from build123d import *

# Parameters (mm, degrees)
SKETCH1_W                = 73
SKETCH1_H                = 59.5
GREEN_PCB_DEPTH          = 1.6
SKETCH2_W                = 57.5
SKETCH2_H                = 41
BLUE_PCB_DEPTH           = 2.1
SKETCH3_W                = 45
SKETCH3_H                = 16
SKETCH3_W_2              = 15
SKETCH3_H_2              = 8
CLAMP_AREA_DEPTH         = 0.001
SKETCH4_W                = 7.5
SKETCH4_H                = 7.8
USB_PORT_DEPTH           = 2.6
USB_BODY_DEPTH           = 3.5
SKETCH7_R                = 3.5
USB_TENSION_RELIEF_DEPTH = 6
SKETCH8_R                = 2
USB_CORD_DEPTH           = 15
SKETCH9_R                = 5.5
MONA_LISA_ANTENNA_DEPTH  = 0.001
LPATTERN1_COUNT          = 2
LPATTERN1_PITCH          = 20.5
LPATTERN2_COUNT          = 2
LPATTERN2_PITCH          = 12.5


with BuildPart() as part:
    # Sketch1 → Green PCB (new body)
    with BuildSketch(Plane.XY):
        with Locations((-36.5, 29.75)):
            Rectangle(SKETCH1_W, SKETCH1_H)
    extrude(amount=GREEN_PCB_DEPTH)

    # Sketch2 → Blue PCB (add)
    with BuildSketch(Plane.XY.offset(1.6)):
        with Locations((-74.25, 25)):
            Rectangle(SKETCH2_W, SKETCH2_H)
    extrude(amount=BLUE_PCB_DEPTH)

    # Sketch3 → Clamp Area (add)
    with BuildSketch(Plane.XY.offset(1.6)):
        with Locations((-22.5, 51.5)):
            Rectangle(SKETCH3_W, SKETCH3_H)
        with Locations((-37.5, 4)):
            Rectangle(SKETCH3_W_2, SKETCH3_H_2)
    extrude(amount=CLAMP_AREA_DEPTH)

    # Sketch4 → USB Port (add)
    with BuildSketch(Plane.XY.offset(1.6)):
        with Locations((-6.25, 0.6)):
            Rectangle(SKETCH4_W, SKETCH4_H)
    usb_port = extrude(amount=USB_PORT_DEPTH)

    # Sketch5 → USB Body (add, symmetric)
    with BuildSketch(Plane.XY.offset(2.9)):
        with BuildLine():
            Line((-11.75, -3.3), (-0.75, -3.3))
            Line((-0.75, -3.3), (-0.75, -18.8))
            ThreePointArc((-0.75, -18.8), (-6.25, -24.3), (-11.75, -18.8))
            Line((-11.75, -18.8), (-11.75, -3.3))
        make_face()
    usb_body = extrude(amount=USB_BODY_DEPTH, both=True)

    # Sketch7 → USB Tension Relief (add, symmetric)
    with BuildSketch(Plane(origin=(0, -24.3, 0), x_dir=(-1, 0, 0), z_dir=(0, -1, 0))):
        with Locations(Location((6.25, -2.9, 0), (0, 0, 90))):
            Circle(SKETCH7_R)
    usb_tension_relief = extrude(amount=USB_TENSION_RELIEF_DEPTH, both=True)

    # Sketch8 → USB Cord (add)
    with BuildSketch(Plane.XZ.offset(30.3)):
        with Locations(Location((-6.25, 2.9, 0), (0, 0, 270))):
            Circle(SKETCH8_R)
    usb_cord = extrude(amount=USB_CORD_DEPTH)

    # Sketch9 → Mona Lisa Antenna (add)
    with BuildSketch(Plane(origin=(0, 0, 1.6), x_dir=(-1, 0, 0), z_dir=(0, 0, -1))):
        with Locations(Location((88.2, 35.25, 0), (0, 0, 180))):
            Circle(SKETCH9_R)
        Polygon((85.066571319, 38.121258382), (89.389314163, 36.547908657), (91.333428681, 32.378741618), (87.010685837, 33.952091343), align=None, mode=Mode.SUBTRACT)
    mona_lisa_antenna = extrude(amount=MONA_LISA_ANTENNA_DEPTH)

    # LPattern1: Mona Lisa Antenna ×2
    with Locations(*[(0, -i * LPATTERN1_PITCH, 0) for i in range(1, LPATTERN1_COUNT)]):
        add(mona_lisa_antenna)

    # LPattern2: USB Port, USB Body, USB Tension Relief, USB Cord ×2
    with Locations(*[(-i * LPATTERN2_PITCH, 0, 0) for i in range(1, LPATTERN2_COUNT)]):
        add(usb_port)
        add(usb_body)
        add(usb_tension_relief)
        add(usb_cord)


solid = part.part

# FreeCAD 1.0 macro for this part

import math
import FreeCAD as App
import Part
import Sketcher
from FreeCAD import Vector
Q = App.Units.Quantity


def add_polygon(sketch, points):
    """Adds a closed chain of lines whose ends are joined by coincident constraints."""
    first, n = sketch.GeometryCount, len(points)
    for a, b in zip(points, points[1:] + points[:1]):
        sketch.addGeometry(Part.LineSegment(App.Vector(*a, 0), App.Vector(*b, 0)), False)
    for i in range(n):
        sketch.addConstraint(Sketcher.Constraint("Coincident", first + i, 2, first + (i + 1) % n, 1))

doc = App.newDocument("Part")
body = doc.addObject("PartDesign::Body", "Body")

sketch1 = body.newObject("Sketcher::SketchObject", "Sketch")
sketch1.AttachmentSupport = (doc.getObject("XY_Plane"), [""])
sketch1.MapMode = "FlatFace"
add_polygon(sketch1, [(-73, 59.5), (-73, 0), (0, 0), (0, 59.5)])
sketch1.addConstraint([
    Sketcher.Constraint("Vertical", 0),
    Sketcher.Constraint("Horizontal", 1),
    Sketcher.Constraint("Vertical", 2),
    Sketcher.Constraint("Horizontal", 3),
    Sketcher.Constraint("Coincident", 1, 2, -1, 1),
    Sketcher.Constraint("DistanceX", 1, 1, 1, 2, 73.0),
    Sketcher.Constraint("DistanceY", 0, 2, 0, 1, 59.5),
])
pad1 = body.newObject("PartDesign::Pad", "Pad")
pad1.Profile = sketch1
pad1.Length = 1.6

sketch2 = body.newObject("Sketcher::SketchObject", "Sketch001")
sketch2.AttachmentSupport = (doc.getObject("XY_Plane"), [""])
sketch2.MapMode = "FlatFace"
sketch2.AttachmentOffset = App.Placement(Vector(0, 0, 1.6), App.Rotation())
add_polygon(sketch2, [(-103, 45.5), (-103, 4.5), (-45.5, 4.5), (-45.5, 45.5)])
sketch2.addConstraint([
    Sketcher.Constraint("Vertical", 0),
    Sketcher.Constraint("Horizontal", 1),
    Sketcher.Constraint("Vertical", 2),
    Sketcher.Constraint("Horizontal", 3),
    Sketcher.Constraint("DistanceY", 0, 2, 0, 1, 41.0),
    Sketcher.Constraint("DistanceX", 1, 1, 1, 2, 57.5),
    Sketcher.Constraint("DistanceX", 0, 2, -1, 1, 103.0),
    Sketcher.Constraint("DistanceY", -1, 1, 0, 2, 4.5),
])
pad2 = body.newObject("PartDesign::Pad", "Pad001")
pad2.Profile = sketch2
pad2.Length = 2.1

sketch3 = body.newObject("Sketcher::SketchObject", "Sketch002")
sketch3.AttachmentSupport = (doc.getObject("XY_Plane"), [""])
sketch3.MapMode = "FlatFace"
sketch3.AttachmentOffset = App.Placement(Vector(0, 0, 1.6), App.Rotation())
add_polygon(sketch3, [(-45, 59.5), (-45, 43.5), (0, 43.5), (0, 59.5)])
add_polygon(sketch3, [(-45, 8), (-45, 0), (-30, 0), (-30, 8)])
sketch3.addConstraint([
    Sketcher.Constraint("Vertical", 0),
    Sketcher.Constraint("Horizontal", 1),
    Sketcher.Constraint("Vertical", 2),
    Sketcher.Constraint("Horizontal", 3),
    Sketcher.Constraint("Vertical", 4),
    Sketcher.Constraint("Horizontal", 5),
    Sketcher.Constraint("Vertical", 6),
    Sketcher.Constraint("Horizontal", 7),
    Sketcher.Constraint("PointOnObject", 1, 2, -2),
    Sketcher.Constraint("PointOnObject", 4, 2, -1),
    Sketcher.Constraint("Vertical", 3, 2, 4, 2),
    Sketcher.Constraint("DistanceX", 1, 1, 1, 2, 45.0),
    Sketcher.Constraint("DistanceX", 5, 1, 5, 2, 15.0),
    Sketcher.Constraint("DistanceY", 0, 2, 0, 1, 16.0),
    Sketcher.Constraint("DistanceY", 4, 2, 4, 1, 8.0),
    Sketcher.Constraint("DistanceY", -1, 1, 0, 2, 43.5),
])
pad3 = body.newObject("PartDesign::Pad", "Pad002")
pad3.Profile = sketch3
pad3.Length = 0.001

sketch4 = body.newObject("Sketcher::SketchObject", "Sketch003")
sketch4.AttachmentSupport = (doc.getObject("XY_Plane"), [""])
sketch4.MapMode = "FlatFace"
sketch4.AttachmentOffset = App.Placement(Vector(0, 0, 1.6), App.Rotation())
add_polygon(sketch4, [(-10, 4.5), (-10, -3.3), (-2.5, -3.3), (-2.5, 4.5)])
sketch4.addConstraint([
    Sketcher.Constraint("Vertical", 0),
    Sketcher.Constraint("Horizontal", 1),
    Sketcher.Constraint("Vertical", 2),
    Sketcher.Constraint("Horizontal", 3),
    Sketcher.Constraint("DistanceX", 1, 1, 1, 2, 7.5),
    Sketcher.Constraint("DistanceY", 0, 2, 0, 1, 7.8),
    Sketcher.Constraint("DistanceX", 0, 2, -1, 1, 10.0),
    Sketcher.Constraint("DistanceY", 0, 2, -1, 1, 3.3),
])
pad4 = body.newObject("PartDesign::Pad", "Pad003")
pad4.Profile = sketch4
pad4.Length = 2.6

sketch5 = body.newObject("Sketcher::SketchObject", "Sketch004")
sketch5.AttachmentSupport = (doc.getObject("XY_Plane"), [""])
sketch5.MapMode = "FlatFace"
sketch5.AttachmentOffset = App.Placement(Vector(0, 0, 2.9), App.Rotation())
sketch5.addGeometry([
    Part.LineSegment(Vector(-0.75, -3.3, 0), Vector(-11.75, -3.3, 0)),
    Part.LineSegment(Vector(-11.75, -3.3, 0), Vector(-11.75, -18.8, 0)),
    Part.ArcOfCircle(Part.Circle(Vector(-6.25, -18.8, 0), Vector(0, 0, 1), 5.5), math.radians(180), math.radians(360)),
    Part.LineSegment(Vector(-0.75, -18.8, 0), Vector(-0.75, -3.3, 0)),
], False)
sketch5.addConstraint([
    Sketcher.Constraint("Coincident", 0, 2, 1, 1),
    Sketcher.Constraint("Tangent", 1, 2, 2, 1),
    Sketcher.Constraint("Tangent", 2, 2, 3, 1),
    Sketcher.Constraint("Coincident", 3, 2, 0, 1),
    Sketcher.Constraint("Horizontal", 0),
    Sketcher.Constraint("Vertical", 1),
    Sketcher.Constraint("Vertical", 3),
    Sketcher.Constraint("Radius", 2, 5.5),
    Sketcher.Constraint("DistanceY", 1, 2, 1, 1, 15.5),
    Sketcher.Constraint("DistanceY", 2, 3, -1, 1, 18.8),
    Sketcher.Constraint("DistanceX", 2, 3, -1, 1, 6.25),
])
pad5 = body.newObject("PartDesign::Pad", "Pad004")
pad5.Profile = sketch5
pad5.Length = 7
pad5.Midplane = True

sketch6 = body.newObject("Sketcher::SketchObject", "Sketch005")
sketch6.AttachmentSupport = (doc.getObject("XZ_Plane"), [""])
sketch6.MapMode = "FlatFace"
sketch6.AttachmentOffset = App.Placement(Vector(0, 0, 24.3), App.Rotation())
sketch6.addGeometry(Part.Circle(Vector(-6.25, 2.9, 0), Vector(0, 0, 1), 3.5), False)
sketch6.addConstraint([
    Sketcher.Constraint("Diameter", 0, 7.0),
    Sketcher.Constraint("DistanceY", -1, 1, 0, 3, 2.9),
    Sketcher.Constraint("DistanceX", 0, 3, -1, 1, 6.25),
])
pad6 = body.newObject("PartDesign::Pad", "Pad005")
pad6.Profile = sketch6
pad6.Length = 12
pad6.Midplane = True

sketch7 = body.newObject("Sketcher::SketchObject", "Sketch006")
sketch7.AttachmentSupport = (doc.getObject("XZ_Plane"), [""])
sketch7.MapMode = "FlatFace"
sketch7.AttachmentOffset = App.Placement(Vector(0, 0, 30.3), App.Rotation())
sketch7.addGeometry(Part.Circle(Vector(-6.25, 2.9, 0), Vector(0, 0, 1), 2), False)
sketch7.addConstraint([
    Sketcher.Constraint("Diameter", 0, 4.0),
    Sketcher.Constraint("DistanceY", -1, 1, 0, 3, 2.9),
    Sketcher.Constraint("DistanceX", 0, 3, -1, 1, 6.25),
])
pad7 = body.newObject("PartDesign::Pad", "Pad006")
pad7.Profile = sketch7
pad7.Length = 15

sketch8 = body.newObject("Sketcher::SketchObject", "Sketch007")
sketch8.AttachmentSupport = (doc.getObject("XY_Plane"), [""])
sketch8.MapMode = "FlatFace"
sketch8.AttachmentOffset = App.Placement(Vector(0, 0, 1.6), App.Rotation())
sketch8.addGeometry(Part.Circle(Vector(-88.2, 35.25, 0), Vector(0, 0, 1), 5.5), False)
add_polygon(sketch8, [(-87.010686, 33.952091), (-85.066571, 38.121258), (-89.389314, 36.547909), (-91.333429, 32.378742)])
sketch8.addConstraint([
    Sketcher.Constraint("Parallel", 1, 3),
    Sketcher.Constraint("Parallel", 2, 4),
    Sketcher.Constraint("Equal", 1, 2),
    Sketcher.Constraint("Diameter", 0, 11.0),
    Sketcher.Constraint("Angle", 1, Q("65 deg")),
    Sketcher.Constraint("Angle", 2, Q("-160 deg")),
    Sketcher.Constraint("DistanceX", 0, 3, -1, 1, 88.2),
    Sketcher.Constraint("DistanceY", -1, 1, 0, 3, 35.25),
    Sketcher.Constraint("DistanceX", 1, 2, -1, 1, 85.066571),
    Sketcher.Constraint("DistanceY", -1, 1, 1, 2, 38.121258),
    Sketcher.Constraint("DistanceY", -1, 1, 2, 2, 36.547909),
])
pad8 = body.newObject("PartDesign::Pad", "Pad007")
pad8.Profile = sketch8
pad8.Length = 0.001
pad8.Reversed = True
doc.recompute()

linearpattern = body.newObject("PartDesign::LinearPattern", "LinearPattern")
linearpattern.Originals = [pad8]
linearpattern.Direction = (doc.getObject("Y_Axis"), [""])
linearpattern.Mode = "offset"
linearpattern.Offset = 20.5
linearpattern.Occurrences = 2
linearpattern.Reversed = True
body.Tip = linearpattern
doc.recompute()

linearpattern2 = body.newObject("PartDesign::LinearPattern", "LinearPattern001")
linearpattern2.Originals = [pad4, pad5, pad6, pad7]
linearpattern2.Direction = (doc.getObject("X_Axis"), [""])
linearpattern2.Mode = "offset"
linearpattern2.Offset = 12.5
linearpattern2.Occurrences = 2
linearpattern2.Reversed = True
body.Tip = linearpattern2

doc.recompute()
